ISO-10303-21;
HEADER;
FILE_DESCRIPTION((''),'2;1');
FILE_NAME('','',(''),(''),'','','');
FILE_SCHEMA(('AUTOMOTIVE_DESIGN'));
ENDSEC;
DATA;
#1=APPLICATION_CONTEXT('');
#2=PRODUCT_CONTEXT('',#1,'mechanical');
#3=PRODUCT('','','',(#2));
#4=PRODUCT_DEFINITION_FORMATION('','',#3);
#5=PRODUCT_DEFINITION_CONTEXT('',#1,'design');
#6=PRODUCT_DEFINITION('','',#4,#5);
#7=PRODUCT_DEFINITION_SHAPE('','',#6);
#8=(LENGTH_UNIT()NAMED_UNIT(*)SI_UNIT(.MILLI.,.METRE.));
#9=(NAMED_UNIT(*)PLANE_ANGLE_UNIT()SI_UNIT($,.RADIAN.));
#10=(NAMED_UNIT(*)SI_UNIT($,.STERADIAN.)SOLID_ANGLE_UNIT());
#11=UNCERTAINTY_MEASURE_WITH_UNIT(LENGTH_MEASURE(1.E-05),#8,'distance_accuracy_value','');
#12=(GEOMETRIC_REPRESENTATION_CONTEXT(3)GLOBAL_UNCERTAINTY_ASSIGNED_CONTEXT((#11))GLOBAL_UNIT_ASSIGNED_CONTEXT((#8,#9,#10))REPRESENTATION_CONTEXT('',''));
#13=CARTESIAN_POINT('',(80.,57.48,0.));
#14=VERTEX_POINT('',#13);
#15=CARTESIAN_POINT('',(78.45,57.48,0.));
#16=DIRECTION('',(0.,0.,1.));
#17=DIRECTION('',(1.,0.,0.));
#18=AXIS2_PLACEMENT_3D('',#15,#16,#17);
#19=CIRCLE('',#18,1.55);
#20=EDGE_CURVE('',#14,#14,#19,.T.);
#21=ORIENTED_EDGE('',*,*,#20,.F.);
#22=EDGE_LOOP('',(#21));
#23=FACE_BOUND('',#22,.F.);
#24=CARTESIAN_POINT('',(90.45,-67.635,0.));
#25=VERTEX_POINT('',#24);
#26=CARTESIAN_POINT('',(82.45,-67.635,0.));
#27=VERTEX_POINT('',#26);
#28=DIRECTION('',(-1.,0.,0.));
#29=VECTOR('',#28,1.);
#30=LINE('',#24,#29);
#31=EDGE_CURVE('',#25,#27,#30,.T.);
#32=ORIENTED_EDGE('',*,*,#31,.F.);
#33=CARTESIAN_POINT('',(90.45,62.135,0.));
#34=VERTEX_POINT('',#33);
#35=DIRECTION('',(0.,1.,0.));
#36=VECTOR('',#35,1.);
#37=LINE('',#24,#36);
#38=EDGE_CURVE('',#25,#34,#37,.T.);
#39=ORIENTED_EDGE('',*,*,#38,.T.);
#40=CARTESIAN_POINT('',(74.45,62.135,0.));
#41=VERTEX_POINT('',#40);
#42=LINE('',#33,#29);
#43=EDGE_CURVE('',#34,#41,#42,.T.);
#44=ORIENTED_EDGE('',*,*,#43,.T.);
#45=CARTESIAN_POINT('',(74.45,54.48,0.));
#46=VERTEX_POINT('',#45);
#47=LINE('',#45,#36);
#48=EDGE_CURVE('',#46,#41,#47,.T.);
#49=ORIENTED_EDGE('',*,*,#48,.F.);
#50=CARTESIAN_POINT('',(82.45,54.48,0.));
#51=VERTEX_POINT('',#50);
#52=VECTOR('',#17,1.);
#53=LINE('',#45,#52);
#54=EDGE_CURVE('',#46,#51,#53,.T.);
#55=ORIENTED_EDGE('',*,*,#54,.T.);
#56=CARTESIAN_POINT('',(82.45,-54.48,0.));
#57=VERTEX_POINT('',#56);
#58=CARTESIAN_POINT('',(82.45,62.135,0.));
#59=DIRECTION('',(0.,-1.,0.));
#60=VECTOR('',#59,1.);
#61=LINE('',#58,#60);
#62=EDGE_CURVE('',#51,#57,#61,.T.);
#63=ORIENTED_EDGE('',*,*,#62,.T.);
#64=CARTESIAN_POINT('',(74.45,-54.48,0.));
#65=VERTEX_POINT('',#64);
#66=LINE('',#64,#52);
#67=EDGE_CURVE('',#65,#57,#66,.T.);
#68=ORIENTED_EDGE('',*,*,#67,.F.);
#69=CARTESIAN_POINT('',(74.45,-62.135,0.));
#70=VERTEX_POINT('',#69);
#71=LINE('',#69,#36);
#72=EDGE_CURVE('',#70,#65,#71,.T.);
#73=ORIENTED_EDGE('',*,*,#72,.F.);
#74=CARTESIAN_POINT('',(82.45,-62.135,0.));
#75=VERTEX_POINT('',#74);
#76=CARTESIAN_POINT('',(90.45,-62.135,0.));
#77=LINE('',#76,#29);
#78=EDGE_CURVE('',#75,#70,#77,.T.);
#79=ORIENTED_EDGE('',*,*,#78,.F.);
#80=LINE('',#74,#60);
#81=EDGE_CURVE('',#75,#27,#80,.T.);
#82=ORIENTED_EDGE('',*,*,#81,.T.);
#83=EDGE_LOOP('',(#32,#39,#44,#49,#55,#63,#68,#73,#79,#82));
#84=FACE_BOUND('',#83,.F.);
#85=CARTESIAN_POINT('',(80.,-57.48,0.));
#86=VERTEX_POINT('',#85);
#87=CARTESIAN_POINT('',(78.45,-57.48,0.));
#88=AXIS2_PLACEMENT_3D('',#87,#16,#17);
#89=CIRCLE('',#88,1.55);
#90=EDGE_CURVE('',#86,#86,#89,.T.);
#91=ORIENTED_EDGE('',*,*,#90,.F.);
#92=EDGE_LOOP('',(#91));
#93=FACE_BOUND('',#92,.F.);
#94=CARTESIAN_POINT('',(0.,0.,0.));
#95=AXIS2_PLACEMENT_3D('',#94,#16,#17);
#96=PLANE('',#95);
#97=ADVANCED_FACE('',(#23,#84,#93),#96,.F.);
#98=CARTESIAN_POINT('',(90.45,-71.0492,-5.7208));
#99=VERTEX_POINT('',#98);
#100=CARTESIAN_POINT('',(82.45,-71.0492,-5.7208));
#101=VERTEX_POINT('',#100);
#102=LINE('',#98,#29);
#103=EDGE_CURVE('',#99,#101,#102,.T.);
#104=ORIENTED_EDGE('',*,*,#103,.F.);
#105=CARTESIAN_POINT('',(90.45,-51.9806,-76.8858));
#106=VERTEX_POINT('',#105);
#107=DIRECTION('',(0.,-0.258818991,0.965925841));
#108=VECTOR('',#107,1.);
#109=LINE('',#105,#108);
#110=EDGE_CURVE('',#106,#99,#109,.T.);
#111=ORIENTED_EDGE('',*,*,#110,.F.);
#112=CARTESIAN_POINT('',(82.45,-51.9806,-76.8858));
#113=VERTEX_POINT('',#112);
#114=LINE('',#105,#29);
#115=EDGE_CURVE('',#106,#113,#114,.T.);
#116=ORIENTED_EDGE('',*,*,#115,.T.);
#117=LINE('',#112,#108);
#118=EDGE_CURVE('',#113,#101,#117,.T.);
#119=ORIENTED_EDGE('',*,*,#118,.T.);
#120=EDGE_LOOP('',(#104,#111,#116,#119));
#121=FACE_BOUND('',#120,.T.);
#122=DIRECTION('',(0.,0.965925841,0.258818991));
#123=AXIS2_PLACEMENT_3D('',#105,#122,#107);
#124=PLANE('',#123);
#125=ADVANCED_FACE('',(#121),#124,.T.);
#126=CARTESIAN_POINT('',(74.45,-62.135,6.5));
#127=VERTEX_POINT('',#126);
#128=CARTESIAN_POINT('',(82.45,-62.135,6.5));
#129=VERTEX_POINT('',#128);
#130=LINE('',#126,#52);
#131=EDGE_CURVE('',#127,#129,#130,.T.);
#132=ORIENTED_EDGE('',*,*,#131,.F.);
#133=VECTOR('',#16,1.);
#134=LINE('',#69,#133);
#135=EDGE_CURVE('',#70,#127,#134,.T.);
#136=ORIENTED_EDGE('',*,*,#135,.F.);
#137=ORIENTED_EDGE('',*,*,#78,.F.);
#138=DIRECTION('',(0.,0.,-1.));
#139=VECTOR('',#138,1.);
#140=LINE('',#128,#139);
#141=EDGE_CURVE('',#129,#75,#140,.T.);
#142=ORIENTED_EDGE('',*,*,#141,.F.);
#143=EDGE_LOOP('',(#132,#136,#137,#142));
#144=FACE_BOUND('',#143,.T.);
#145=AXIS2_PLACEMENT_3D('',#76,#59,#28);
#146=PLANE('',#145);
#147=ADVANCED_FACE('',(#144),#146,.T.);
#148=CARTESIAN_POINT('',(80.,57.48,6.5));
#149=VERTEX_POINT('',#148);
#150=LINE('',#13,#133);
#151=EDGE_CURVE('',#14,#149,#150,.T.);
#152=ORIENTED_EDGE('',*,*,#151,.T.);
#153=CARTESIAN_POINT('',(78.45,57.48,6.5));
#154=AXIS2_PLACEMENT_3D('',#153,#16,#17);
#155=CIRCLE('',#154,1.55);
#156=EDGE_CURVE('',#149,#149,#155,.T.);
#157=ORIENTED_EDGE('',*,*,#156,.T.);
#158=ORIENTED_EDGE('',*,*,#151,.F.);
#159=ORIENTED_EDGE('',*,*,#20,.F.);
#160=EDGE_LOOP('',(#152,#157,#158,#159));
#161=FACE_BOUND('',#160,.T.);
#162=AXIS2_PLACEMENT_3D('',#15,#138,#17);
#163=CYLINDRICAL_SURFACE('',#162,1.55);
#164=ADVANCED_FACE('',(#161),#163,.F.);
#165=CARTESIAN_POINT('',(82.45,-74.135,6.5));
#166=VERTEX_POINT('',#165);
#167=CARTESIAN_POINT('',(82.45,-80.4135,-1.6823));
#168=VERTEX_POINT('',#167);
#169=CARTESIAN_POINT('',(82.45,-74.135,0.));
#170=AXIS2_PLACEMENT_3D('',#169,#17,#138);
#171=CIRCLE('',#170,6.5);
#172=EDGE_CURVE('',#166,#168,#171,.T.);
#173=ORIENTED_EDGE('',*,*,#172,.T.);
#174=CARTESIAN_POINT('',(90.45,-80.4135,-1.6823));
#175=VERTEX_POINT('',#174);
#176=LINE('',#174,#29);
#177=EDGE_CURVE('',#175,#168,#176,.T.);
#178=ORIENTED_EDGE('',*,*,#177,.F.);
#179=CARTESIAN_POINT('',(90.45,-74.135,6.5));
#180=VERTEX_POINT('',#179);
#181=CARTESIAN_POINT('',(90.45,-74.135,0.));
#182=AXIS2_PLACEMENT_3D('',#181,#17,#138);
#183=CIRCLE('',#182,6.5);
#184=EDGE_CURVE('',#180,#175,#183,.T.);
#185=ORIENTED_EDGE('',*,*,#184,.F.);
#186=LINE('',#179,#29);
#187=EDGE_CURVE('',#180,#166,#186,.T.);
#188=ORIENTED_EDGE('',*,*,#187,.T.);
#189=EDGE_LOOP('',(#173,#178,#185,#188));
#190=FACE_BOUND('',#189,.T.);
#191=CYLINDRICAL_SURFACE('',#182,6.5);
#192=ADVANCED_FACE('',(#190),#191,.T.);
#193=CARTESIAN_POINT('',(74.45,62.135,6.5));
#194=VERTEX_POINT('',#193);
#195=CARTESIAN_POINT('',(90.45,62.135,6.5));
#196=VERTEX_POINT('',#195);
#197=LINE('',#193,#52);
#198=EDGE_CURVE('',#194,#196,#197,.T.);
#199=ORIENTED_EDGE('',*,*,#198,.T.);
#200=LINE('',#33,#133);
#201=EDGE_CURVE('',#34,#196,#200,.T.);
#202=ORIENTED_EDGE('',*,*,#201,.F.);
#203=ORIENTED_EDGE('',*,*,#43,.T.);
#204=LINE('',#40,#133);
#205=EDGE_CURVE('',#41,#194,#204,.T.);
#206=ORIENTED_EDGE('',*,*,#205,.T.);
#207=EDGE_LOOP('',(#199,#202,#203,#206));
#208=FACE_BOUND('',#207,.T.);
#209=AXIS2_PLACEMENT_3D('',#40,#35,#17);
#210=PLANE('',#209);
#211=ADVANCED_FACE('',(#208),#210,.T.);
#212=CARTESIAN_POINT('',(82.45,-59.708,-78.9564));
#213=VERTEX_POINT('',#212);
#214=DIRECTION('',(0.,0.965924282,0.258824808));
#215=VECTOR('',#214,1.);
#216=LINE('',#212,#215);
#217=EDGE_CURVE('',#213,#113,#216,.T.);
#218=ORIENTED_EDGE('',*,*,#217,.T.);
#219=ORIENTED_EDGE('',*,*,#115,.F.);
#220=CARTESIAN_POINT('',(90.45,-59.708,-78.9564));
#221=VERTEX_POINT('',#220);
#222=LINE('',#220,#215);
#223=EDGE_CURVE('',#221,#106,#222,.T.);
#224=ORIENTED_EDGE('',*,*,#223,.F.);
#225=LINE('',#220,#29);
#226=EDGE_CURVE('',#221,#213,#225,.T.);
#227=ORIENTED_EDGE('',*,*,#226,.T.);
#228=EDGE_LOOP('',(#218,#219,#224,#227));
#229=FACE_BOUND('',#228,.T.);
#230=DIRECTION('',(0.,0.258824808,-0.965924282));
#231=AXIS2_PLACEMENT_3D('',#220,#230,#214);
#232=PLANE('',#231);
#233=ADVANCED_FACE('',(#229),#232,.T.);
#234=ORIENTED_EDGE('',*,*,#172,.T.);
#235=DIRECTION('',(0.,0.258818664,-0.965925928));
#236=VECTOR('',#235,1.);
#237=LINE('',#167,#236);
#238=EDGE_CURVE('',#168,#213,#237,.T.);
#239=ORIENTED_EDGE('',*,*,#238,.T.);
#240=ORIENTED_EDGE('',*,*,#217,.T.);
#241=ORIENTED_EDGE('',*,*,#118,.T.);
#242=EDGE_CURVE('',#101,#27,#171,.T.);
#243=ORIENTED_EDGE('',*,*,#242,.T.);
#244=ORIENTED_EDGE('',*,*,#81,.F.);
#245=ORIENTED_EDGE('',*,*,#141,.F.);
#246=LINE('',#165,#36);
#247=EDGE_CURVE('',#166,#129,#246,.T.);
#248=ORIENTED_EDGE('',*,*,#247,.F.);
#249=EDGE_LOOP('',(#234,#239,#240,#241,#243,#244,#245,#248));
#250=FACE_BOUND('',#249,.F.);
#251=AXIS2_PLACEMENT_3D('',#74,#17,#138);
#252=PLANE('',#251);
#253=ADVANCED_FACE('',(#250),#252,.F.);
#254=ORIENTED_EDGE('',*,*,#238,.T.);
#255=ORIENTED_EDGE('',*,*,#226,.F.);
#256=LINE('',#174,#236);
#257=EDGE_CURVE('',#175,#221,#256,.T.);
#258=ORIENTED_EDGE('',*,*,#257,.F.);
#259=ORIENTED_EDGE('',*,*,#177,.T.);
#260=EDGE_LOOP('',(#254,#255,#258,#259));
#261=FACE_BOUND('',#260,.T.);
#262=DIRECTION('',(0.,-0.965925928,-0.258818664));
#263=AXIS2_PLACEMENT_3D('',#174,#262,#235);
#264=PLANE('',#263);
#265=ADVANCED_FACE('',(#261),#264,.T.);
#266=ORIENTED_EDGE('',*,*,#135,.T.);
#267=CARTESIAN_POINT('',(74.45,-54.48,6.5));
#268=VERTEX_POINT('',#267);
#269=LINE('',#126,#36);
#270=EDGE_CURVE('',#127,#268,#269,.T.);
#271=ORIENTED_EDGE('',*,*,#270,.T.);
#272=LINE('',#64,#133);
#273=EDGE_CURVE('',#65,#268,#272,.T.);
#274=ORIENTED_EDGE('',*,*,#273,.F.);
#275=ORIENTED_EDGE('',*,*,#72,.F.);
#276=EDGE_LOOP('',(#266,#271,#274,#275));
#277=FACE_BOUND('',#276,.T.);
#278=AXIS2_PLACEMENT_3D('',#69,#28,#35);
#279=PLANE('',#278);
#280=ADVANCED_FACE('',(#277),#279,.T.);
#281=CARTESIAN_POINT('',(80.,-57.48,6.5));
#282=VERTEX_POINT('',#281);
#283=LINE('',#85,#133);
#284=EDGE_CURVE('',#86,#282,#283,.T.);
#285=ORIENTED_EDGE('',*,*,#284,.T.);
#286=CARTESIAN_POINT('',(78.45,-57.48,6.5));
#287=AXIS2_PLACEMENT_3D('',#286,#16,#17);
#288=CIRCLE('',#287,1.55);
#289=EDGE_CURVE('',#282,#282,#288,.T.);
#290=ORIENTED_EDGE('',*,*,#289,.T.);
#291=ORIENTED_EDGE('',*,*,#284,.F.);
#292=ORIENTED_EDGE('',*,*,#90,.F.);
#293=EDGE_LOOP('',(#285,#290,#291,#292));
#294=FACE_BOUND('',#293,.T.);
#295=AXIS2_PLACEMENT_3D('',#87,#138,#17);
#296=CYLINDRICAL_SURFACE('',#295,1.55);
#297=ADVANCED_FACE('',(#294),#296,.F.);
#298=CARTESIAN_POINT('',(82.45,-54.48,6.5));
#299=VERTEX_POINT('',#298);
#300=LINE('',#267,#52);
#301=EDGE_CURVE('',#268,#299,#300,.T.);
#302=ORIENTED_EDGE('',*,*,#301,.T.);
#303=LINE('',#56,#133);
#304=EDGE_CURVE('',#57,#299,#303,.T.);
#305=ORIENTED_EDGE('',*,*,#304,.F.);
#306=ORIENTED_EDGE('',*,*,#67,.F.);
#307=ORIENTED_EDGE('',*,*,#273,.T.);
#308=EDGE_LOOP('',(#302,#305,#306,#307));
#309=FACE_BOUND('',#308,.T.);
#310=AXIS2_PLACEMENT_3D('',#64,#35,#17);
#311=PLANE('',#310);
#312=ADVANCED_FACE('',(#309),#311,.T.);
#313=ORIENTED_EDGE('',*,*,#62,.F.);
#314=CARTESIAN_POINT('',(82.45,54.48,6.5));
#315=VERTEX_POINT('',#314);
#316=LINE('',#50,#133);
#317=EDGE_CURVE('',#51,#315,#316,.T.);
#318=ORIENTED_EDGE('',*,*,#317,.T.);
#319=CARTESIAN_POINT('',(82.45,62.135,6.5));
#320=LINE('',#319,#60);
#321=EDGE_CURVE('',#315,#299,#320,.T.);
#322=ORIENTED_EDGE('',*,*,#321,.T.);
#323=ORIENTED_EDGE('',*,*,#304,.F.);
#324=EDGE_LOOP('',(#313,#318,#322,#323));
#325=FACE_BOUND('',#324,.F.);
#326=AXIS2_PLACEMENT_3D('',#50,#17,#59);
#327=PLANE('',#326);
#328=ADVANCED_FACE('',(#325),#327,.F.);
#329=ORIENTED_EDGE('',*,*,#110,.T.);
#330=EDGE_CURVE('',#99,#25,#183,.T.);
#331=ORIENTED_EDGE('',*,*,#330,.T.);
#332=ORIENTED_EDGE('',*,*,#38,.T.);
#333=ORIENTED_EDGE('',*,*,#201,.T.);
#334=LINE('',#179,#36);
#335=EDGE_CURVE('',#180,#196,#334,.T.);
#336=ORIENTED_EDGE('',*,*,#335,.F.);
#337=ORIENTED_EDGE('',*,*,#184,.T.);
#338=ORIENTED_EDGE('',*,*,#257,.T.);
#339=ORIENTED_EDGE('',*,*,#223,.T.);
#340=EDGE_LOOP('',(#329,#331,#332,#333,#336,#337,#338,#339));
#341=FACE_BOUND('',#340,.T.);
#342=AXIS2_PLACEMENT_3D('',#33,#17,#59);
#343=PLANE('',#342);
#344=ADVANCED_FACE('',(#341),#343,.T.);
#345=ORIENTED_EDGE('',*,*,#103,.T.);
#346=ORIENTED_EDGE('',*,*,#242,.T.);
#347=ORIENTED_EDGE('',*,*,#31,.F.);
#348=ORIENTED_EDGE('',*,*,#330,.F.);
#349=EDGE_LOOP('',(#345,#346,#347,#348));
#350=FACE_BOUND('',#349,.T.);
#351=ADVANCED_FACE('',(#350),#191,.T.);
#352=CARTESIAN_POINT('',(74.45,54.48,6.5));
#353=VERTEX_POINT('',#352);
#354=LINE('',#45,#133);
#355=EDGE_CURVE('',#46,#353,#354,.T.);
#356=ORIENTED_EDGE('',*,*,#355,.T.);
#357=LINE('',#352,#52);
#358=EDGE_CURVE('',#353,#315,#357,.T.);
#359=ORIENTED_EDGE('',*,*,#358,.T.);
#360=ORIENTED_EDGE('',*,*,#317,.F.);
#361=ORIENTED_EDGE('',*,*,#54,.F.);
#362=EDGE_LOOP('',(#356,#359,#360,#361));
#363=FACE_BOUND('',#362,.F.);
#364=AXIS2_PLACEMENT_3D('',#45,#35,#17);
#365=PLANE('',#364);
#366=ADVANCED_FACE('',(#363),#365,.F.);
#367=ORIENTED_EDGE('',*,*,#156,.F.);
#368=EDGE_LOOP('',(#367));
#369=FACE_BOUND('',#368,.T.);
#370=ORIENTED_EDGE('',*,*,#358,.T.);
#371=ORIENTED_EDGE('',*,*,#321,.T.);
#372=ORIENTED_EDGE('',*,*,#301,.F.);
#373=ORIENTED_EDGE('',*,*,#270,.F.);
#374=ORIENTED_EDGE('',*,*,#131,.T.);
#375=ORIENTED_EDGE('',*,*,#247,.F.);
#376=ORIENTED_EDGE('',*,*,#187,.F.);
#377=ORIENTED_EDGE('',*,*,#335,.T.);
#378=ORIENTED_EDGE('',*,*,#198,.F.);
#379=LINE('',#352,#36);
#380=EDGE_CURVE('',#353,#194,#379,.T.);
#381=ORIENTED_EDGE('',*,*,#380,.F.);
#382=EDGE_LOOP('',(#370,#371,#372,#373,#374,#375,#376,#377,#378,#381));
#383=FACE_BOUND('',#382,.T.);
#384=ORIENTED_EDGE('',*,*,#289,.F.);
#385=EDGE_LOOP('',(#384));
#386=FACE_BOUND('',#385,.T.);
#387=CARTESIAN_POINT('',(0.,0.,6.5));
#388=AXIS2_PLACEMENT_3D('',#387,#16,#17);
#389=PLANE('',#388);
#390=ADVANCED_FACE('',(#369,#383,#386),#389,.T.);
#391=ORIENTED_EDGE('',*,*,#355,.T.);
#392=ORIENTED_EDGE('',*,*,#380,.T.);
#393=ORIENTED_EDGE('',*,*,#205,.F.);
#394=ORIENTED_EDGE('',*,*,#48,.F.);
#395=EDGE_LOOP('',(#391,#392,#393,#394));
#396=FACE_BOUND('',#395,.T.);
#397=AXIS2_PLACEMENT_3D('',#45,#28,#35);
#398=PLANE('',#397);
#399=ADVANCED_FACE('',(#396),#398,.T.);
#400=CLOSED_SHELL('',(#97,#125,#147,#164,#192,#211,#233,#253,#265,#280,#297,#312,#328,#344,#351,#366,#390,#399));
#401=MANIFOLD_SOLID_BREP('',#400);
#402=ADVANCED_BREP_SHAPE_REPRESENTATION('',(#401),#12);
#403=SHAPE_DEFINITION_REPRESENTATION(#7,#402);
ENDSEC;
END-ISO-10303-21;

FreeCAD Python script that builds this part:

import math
import FreeCAD as App
import Part
import Sketcher
Q = App.Units.Quantity


def add_polygon(sketch, points):
    """Adds a closed chain of lines whose ends are joined by coincident constraints."""
    first, n = sketch.GeometryCount, len(points)
    for a, b in zip(points, points[1:] + points[:1]):
        sketch.addGeometry(Part.LineSegment(App.Vector(*a, 0), App.Vector(*b, 0)), False)
    for i in range(n):
        sketch.addConstraint(Sketcher.Constraint("Coincident", first + i, 2, first + (i + 1) % n, 1))

doc = App.newDocument("Part")
params = doc.addObject("Spreadsheet::Sheet", "Params")
for row, (alias, value) in enumerate([
    ("sketch1_diameter", "3.1 mm"),
    ("sketch1_width", "8 mm"),
    ("sketch1_height", "124.27 mm"),
    ("pad1_length", "6.5 mm"),
    ("sketch2_width", "12 mm"),
    ("sketch2_length", "80 mm"),
    ("sketch2_length2", "8 mm"),
    ("sketch2_radius", "6.5 mm"),
    ("pad2_length", "8 mm"),
], start=1):
    params.set(f"A{row}", alias)
    params.set(f"B{row}", "=" + value)
    params.setAlias(f"B{row}", alias)

body = doc.addObject("PartDesign::Body", "Body")

# Sketch on XY plane
sketch1 = body.newObject("Sketcher::SketchObject", "Sketch")
sketch1.AttachmentSupport = (doc.getObject("XY_Plane"), [""])
sketch1.MapMode = "FlatFace"
add_polygon(sketch1, [(74.45, 62.135), (74.45, 54.48), (82.45, 54.48), (82.45, -54.48), (74.45, -54.48), (74.45, -62.135), (90.45, -62.135), (90.45, 62.135)])  # lines 0-7
sketch1.addGeometry(Part.Circle(App.Vector(78.45, 57.48, 0), App.Vector(0, 0, 1), 1.55), False)  # 8
sketch1.addGeometry(Part.Circle(App.Vector(78.45, -57.48, 0), App.Vector(0, 0, 1), 1.55), False)  # 9
sketch1.addConstraint([
    Sketcher.Constraint("Vertical", 0),
    Sketcher.Constraint("Horizontal", 1),
    Sketcher.Constraint("Vertical", 2),
    Sketcher.Constraint("Horizontal", 3),
    Sketcher.Constraint("Vertical", 4),
    Sketcher.Constraint("Horizontal", 5),
    Sketcher.Constraint("Vertical", 6),
    Sketcher.Constraint("Horizontal", 7),
    Sketcher.Constraint("Equal", 8, 9),
    Sketcher.Constraint("Symmetric", 8, 3, 9, 3, -1),
    Sketcher.Constraint("Symmetric", 0, 2, 3, 2, -1),
    Sketcher.Constraint("Equal", 0, 4),
    Sketcher.Constraint("Diameter", 8, Q("3.1 mm")),
    Sketcher.Constraint("DistanceX", 1, 1, 1, 2, Q("8 mm")),
    Sketcher.Constraint("DistanceY", 0, 2, 8, 3, Q("3 mm")),
    Sketcher.Constraint("DistanceX", 2, 2, 5, 2, Q("8 mm")),
    Sketcher.Constraint("DistanceY", 6, 1, 6, 2, Q("124.27 mm")),
    Sketcher.Constraint("DistanceX", -1, 1, 8, 3, Q("78.45 mm")),
    Sketcher.Constraint("DistanceY", 9, 3, 8, 3, Q("114.96 mm")),
    Sketcher.Constraint("DistanceX", 0, 2, 8, 3, Q("4 mm")),
])
sketch1.setExpression("Constraints[20]", "Params.sketch1_diameter")
sketch1.setExpression("Constraints[21]", "Params.sketch1_width")
sketch1.setExpression("Constraints[24]", "Params.sketch1_height")
pad1 = body.newObject("PartDesign::Pad", "Pad")
pad1.Profile = sketch1
pad1.setExpression("Length", "Params.pad1_length")

# Sketch on YZ plane
sketch2 = body.newObject("Sketcher::SketchObject", "Sketch001")
sketch2.AttachmentSupport = (doc.getObject("YZ_Plane"), [""])
sketch2.MapMode = "FlatFace"
sketch2.AttachmentOffset = App.Placement(App.Vector(0, 0, 90.45), App.Rotation())
sketch2.addGeometry([
    Part.LineSegment(App.Vector(-62.135, 0, 0), App.Vector(-62.135, 6.5, 0)),  # 0
    Part.LineSegment(App.Vector(-62.135, 6.5, 0), App.Vector(-74.135, 6.5, 0)),  # 1
    Part.ArcOfCircle(Part.Circle(App.Vector(-74.135, 0, 0), App.Vector(0, 0, 1), 6.5), math.radians(90), math.radians(194.999838)),  # 2
    Part.LineSegment(App.Vector(-80.4135, -1.6823, 0), App.Vector(-59.708, -78.9564, 0)),  # 3
    Part.LineSegment(App.Vector(-59.708, -78.9564, 0), App.Vector(-51.9806, -76.8858, 0)),  # 4
    Part.LineSegment(App.Vector(-51.9806, -76.8858, 0), App.Vector(-71.0492, -5.7208, 0)),  # 5
    Part.ArcOfCircle(Part.Circle(App.Vector(-74.135, 0, 0), App.Vector(0, 0, 1), 6.5), math.radians(-61.657573), math.radians(0)),  # 6
    Part.LineSegment(App.Vector(-67.635, 0, 0), App.Vector(-62.135, 0, 0)),  # 7
], False)
sketch2.addConstraint([
    Sketcher.Constraint("Coincident", 0, 2, 1, 1),
    Sketcher.Constraint("Tangent", 1, 2, 2, 1),
    Sketcher.Constraint("Tangent", 2, 2, 3, 1),
    Sketcher.Constraint("Coincident", 3, 2, 4, 1),
    Sketcher.Constraint("Coincident", 4, 2, 5, 1),
    Sketcher.Constraint("Coincident", 5, 2, 6, 1),
    Sketcher.Constraint("Coincident", 6, 2, 7, 1),
    Sketcher.Constraint("Coincident", 7, 2, 0, 1),
    Sketcher.Constraint("Vertical", 0),
    Sketcher.Constraint("Horizontal", 1),
    Sketcher.Constraint("Horizontal", 7),
    Sketcher.Constraint("Coincident", 6, 3, 2, 3),
    Sketcher.Constraint("Equal", 2, 6),
    Sketcher.Constraint("PointOnObject", 2, 3, -1),
    Sketcher.Constraint("PointOnObject", 6, 2, -1),
    Sketcher.Constraint("Perpendicular", 3, 4),
    Sketcher.Constraint("Perpendicular", 4, 5),
    Sketcher.Constraint("DistanceX", 1, 2, 1, 1, Q("12 mm")),
    Sketcher.Constraint("Angle", 3, Q("-75 deg")),
    Sketcher.Constraint("Distance", 3, Q("80 mm")),
    Sketcher.Constraint("Distance", 4, Q("8 mm")),
    Sketcher.Constraint("Radius", 2, Q("6.5 mm")),
    Sketcher.Constraint("DistanceX", 2, 3, -1, 1, Q("74.135 mm")),
])
sketch2.setExpression("Constraints[17]", "Params.sketch2_width")
sketch2.setExpression("Constraints[19]", "Params.sketch2_length")
sketch2.setExpression("Constraints[20]", "Params.sketch2_length2")
sketch2.setExpression("Constraints[21]", "Params.sketch2_radius")
pad2 = body.newObject("PartDesign::Pad", "Pad001")
pad2.Profile = sketch2
pad2.setExpression("Length", "Params.pad2_length")
pad2.Reversed = True

doc.recompute()
